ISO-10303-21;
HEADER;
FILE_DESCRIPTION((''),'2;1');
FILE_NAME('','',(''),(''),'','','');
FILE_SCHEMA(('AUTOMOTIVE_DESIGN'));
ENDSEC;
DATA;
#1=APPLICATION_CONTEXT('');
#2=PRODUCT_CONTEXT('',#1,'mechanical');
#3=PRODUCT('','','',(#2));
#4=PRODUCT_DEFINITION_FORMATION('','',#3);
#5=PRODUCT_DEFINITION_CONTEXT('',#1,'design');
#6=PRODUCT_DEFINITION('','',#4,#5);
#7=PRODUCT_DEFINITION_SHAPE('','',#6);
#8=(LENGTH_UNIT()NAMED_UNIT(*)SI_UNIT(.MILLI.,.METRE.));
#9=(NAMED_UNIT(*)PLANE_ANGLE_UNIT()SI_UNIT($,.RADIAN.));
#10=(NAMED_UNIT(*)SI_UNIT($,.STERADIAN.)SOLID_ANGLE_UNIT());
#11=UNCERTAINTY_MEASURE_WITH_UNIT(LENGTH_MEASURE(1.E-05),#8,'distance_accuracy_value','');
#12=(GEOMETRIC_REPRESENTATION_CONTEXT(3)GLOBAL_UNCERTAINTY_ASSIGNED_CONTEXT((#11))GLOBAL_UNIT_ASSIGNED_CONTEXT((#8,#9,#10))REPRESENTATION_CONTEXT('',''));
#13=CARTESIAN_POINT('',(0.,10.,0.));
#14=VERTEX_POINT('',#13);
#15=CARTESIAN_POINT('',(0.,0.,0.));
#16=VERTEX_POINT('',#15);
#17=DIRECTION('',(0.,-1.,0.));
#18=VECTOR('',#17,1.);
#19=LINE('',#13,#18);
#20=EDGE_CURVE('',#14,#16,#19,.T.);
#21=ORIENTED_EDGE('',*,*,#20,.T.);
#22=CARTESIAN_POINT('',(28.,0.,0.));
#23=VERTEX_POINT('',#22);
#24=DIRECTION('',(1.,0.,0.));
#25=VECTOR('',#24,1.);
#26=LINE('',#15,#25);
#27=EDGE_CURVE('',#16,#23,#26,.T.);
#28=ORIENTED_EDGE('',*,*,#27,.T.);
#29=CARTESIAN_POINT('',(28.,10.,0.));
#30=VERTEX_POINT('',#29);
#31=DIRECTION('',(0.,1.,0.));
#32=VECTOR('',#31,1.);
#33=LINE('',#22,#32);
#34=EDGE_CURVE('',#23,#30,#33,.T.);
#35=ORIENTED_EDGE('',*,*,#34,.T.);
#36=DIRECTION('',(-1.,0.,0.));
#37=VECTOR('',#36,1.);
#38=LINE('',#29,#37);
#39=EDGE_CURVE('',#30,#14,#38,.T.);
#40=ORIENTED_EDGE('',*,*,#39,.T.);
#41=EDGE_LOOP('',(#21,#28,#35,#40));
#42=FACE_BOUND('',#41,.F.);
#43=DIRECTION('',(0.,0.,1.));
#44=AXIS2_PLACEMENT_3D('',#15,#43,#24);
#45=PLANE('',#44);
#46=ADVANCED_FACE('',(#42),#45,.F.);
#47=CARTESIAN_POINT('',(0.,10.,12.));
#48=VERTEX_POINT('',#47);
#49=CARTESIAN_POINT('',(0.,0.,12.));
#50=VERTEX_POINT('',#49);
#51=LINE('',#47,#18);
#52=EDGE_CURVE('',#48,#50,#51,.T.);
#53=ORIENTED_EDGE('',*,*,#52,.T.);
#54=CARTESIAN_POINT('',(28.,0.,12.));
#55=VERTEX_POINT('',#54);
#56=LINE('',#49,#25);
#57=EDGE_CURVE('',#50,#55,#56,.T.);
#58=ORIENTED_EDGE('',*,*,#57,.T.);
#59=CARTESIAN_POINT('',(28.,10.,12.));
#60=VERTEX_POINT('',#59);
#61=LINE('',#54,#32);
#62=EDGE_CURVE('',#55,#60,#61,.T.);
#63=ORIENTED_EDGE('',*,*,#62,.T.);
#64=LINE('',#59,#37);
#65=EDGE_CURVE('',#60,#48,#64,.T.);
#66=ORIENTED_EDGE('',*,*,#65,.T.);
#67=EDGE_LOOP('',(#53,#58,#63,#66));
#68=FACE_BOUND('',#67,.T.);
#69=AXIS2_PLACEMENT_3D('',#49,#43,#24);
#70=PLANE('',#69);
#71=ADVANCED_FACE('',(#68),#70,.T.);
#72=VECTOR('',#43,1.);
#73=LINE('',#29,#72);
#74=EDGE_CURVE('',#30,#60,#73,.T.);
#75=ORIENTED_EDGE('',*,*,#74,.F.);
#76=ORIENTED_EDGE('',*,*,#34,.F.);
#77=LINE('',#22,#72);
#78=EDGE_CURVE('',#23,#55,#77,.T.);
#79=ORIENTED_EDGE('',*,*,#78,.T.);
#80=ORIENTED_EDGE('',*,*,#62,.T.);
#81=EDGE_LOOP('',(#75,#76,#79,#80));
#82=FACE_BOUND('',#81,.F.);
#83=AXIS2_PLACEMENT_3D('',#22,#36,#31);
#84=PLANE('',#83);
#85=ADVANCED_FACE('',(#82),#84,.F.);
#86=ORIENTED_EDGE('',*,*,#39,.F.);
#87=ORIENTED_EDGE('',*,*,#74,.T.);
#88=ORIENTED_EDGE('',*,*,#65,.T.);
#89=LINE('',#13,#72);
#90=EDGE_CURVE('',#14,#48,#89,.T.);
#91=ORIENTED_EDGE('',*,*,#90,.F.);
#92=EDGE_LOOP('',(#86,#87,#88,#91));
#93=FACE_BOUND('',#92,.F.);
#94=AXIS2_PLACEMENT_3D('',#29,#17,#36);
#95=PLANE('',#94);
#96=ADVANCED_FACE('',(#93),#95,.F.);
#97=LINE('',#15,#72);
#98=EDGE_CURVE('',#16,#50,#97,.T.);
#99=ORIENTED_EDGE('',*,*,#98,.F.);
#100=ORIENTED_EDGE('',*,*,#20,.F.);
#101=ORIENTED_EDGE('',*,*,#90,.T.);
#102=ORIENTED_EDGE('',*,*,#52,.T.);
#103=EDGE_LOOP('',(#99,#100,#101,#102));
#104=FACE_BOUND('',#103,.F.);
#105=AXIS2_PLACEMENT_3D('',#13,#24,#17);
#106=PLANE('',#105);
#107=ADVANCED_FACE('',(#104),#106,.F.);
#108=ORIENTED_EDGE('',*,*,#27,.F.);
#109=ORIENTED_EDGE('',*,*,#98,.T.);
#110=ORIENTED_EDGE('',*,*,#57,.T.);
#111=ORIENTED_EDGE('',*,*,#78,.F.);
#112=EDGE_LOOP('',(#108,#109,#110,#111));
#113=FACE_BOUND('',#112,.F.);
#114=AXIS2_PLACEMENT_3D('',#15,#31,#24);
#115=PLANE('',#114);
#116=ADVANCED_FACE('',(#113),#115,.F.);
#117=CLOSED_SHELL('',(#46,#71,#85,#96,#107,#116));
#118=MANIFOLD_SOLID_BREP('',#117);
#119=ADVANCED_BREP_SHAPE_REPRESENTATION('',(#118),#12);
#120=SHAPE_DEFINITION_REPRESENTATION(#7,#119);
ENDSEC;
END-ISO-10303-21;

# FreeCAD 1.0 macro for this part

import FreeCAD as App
import Part
import Sketcher
from FreeCAD import Vector


def add_polygon(sketch, points):
    """Adds a closed chain of lines whose ends are joined by coincident constraints."""
    first, n = sketch.GeometryCount, len(points)
    for a, b in zip(points, points[1:] + points[:1]):
        sketch.addGeometry(Part.LineSegment(App.Vector(*a, 0), App.Vector(*b, 0)), False)
    for i in range(n):
        sketch.addConstraint(Sketcher.Constraint("Coincident", first + i, 2, first + (i + 1) % n, 1))

doc = App.newDocument("Part")
body = doc.addObject("PartDesign::Body", "Body")

# Sketch on XY plane
sketch1 = body.newObject("Sketcher::SketchObject", "Sketch")
sketch1.AttachmentSupport = (doc.getObject("XY_Plane"), [""])
sketch1.MapMode = "FlatFace"
add_polygon(sketch1, [(0, 10), (0, 0), (28, 0), (28, 10)])  # lines 0-3
sketch1.addConstraint([
    Sketcher.Constraint("Vertical", 0),
    Sketcher.Constraint("Horizontal", 1),
    Sketcher.Constraint("Vertical", 2),
    Sketcher.Constraint("Horizontal", 3),
    Sketcher.Constraint("Coincident", 0, 2, -1, 1),
    Sketcher.Constraint("DistanceX", 1, 1, 1, 2, 28.0),
    Sketcher.Constraint("DistanceY", 0, 2, 0, 1, 10.0),
])
pad1 = body.newObject("PartDesign::Pad", "Pad")
pad1.Profile = sketch1
pad1.Length = 12

doc.recompute()
